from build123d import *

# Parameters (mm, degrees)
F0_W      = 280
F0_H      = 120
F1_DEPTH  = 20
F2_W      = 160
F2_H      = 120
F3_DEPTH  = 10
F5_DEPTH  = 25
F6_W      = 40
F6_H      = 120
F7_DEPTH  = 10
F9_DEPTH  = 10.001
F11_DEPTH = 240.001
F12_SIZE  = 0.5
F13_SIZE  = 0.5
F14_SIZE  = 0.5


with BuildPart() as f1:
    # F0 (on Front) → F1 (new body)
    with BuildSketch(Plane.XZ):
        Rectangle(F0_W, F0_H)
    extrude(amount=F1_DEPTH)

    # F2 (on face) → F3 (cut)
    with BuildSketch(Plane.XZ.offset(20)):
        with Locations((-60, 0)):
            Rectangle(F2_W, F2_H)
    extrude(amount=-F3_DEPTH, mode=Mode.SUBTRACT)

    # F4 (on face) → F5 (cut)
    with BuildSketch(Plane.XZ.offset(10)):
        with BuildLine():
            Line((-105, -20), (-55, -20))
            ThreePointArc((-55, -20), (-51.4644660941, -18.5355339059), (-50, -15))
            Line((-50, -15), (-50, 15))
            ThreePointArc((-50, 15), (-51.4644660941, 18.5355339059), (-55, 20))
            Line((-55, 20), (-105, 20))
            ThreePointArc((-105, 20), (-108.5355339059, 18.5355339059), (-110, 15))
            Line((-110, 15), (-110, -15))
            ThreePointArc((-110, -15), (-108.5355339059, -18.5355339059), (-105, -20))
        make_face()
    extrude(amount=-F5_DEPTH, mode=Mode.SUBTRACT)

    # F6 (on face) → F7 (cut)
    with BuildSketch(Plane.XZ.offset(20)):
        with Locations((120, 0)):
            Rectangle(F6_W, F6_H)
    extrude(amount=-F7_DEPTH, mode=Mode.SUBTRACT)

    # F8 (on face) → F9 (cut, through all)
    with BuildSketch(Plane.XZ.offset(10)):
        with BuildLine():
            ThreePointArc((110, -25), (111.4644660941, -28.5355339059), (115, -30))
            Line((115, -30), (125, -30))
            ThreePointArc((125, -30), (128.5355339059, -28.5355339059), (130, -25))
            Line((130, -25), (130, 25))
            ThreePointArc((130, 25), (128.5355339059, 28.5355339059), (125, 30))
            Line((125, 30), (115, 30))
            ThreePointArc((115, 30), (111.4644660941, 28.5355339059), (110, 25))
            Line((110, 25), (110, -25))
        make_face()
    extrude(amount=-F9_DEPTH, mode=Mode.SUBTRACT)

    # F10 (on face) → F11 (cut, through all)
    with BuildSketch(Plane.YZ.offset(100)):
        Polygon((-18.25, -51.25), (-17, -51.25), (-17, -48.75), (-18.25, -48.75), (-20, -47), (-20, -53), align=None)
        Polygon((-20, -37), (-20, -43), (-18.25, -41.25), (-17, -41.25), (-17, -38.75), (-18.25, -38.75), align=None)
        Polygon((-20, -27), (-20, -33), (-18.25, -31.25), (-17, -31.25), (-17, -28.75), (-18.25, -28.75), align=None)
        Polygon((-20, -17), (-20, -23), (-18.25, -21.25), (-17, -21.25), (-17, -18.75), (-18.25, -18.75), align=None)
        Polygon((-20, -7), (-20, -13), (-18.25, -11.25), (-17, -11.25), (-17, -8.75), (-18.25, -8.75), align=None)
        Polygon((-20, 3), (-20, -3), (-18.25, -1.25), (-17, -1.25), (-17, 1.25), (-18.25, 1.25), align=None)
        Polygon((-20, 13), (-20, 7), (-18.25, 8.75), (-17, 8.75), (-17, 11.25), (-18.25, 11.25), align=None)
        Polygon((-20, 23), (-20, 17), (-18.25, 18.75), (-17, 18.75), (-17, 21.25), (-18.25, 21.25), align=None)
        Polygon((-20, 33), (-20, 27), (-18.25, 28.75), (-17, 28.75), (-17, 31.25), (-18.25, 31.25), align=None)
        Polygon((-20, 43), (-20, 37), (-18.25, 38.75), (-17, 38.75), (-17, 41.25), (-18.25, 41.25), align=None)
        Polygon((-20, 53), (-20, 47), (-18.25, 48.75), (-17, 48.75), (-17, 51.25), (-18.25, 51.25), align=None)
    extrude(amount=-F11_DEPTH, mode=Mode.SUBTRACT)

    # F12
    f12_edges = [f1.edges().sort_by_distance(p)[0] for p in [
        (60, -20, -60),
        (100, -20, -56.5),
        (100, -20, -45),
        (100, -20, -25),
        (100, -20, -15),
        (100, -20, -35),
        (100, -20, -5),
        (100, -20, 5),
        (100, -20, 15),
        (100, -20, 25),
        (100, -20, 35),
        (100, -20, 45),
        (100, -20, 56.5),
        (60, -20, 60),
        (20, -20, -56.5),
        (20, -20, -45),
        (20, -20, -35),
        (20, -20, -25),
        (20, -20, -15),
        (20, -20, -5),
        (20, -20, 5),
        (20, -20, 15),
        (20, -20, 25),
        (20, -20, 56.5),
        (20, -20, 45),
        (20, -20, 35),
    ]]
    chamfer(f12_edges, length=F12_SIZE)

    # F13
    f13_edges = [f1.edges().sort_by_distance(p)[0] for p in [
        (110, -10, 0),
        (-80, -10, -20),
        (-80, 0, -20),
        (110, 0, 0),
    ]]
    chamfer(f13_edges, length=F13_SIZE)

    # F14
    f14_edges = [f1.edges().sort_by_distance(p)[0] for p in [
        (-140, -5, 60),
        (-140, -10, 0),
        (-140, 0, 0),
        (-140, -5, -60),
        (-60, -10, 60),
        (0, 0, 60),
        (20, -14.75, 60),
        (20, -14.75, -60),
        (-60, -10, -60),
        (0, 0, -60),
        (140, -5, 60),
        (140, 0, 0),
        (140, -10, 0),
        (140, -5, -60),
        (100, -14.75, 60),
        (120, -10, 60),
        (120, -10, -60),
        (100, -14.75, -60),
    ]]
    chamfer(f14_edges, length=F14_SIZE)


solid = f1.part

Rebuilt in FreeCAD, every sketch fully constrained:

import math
import FreeCAD as App
import Part
import Sketcher

V = App.Vector
Q = App.Units.Quantity


def edges_at(feature, points):
    """Names of the edges that pass closest to the given points."""
    edges = feature.Shape.Edges
    near = lambda p: min(range(len(edges)), key=lambda i: edges[i].distToShape(Part.Vertex(*p))[0])
    return sorted({f"Edge{near(p) + 1}" for p in points})

doc = App.newDocument("Part")
body = doc.addObject("PartDesign::Body", "Body")

# Sketch on XZ plane
sketch1 = body.newObject("Sketcher::SketchObject", "Sketch")
sketch1.AttachmentSupport = (doc.getObject("XZ_Plane"), [""])
sketch1.MapMode = "FlatFace"
sketch1.addGeometry(Part.LineSegment(V(-140, 60, 0), V(-140, -60, 0)), False)
sketch1.addGeometry(Part.LineSegment(V(-140, -60, 0), V(140, -60, 0)), False)
sketch1.addGeometry(Part.LineSegment(V(140, -60, 0), V(140, 60, 0)), False)
sketch1.addGeometry(Part.LineSegment(V(140, 60, 0), V(-140, 60, 0)), False)
sketch1.addConstraint(Sketcher.Constraint("Coincident", 0, 2, 1, 1))
sketch1.addConstraint(Sketcher.Constraint("Coincident", 1, 2, 2, 1))
sketch1.addConstraint(Sketcher.Constraint("Coincident", 2, 2, 3, 1))
sketch1.addConstraint(Sketcher.Constraint("Coincident", 3, 2, 0, 1))
sketch1.addConstraint(Sketcher.Constraint("Vertical", 0))
sketch1.addConstraint(Sketcher.Constraint("Horizontal", 1))
sketch1.addConstraint(Sketcher.Constraint("Vertical", 2))
sketch1.addConstraint(Sketcher.Constraint("Horizontal", 3))
sketch1.addConstraint(Sketcher.Constraint("Symmetric", 0, 2, 2, 2, -1, 1))
sketch1.addConstraint(Sketcher.Constraint("DistanceX", 1, 1, 1, 2, Q("280 mm")))
sketch1.addConstraint(Sketcher.Constraint("DistanceY", 0, 2, 0, 1, Q("120 mm")))
pad1 = body.newObject("PartDesign::Pad", "Pad")
pad1.Profile = sketch1
pad1.Length = 20

# Sketch on XZ plane
sketch2 = body.newObject("Sketcher::SketchObject", "Sketch001")
sketch2.AttachmentSupport = (doc.getObject("XZ_Plane"), [""])
sketch2.MapMode = "FlatFace"
sketch2.AttachmentOffset = App.Placement(V(0, 0, 20), App.Rotation())
sketch2.addGeometry(Part.LineSegment(V(-140, 60, 0), V(-140, -60, 0)), False)
sketch2.addGeometry(Part.LineSegment(V(-140, -60, 0), V(20, -60, 0)), False)
sketch2.addGeometry(Part.LineSegment(V(20, -60, 0), V(20, 60, 0)), False)
sketch2.addGeometry(Part.LineSegment(V(20, 60, 0), V(-140, 60, 0)), False)
sketch2.addConstraint(Sketcher.Constraint("Coincident", 0, 2, 1, 1))
sketch2.addConstraint(Sketcher.Constraint("Coincident", 1, 2, 2, 1))
sketch2.addConstraint(Sketcher.Constraint("Coincident", 2, 2, 3, 1))
sketch2.addConstraint(Sketcher.Constraint("Coincident", 3, 2, 0, 1))
sketch2.addConstraint(Sketcher.Constraint("Vertical", 0))
sketch2.addConstraint(Sketcher.Constraint("Horizontal", 1))
sketch2.addConstraint(Sketcher.Constraint("Vertical", 2))
sketch2.addConstraint(Sketcher.Constraint("Horizontal", 3))
sketch2.addConstraint(Sketcher.Constraint("DistanceX", 1, 1, 1, 2, Q("160 mm")))
sketch2.addConstraint(Sketcher.Constraint("DistanceY", 0, 2, 0, 1, Q("120 mm")))
sketch2.addConstraint(Sketcher.Constraint("DistanceX", 0, 2, -1, 1, Q("140 mm")))
sketch2.addConstraint(Sketcher.Constraint("DistanceY", 0, 2, -1, 1, Q("60 mm")))
pocket1 = body.newObject("PartDesign::Pocket", "Pocket")
pocket1.Profile = sketch2
pocket1.Length = 10

# Sketch on XZ plane
sketch3 = body.newObject("Sketcher::SketchObject", "Sketch002")
sketch3.AttachmentSupport = (doc.getObject("XZ_Plane"), [""])
sketch3.MapMode = "FlatFace"
sketch3.AttachmentOffset = App.Placement(V(0, 0, 10), App.Rotation())
sketch3.addGeometry(Part.LineSegment(V(-105, -20, 0), V(-55, -20, 0)), False)
sketch3.addGeometry(Part.ArcOfCircle(Part.Circle(V(-55, -15, 0), V(0, 0, 1), 5), math.radians(-90), math.radians(0)), False)
sketch3.addGeometry(Part.LineSegment(V(-50, -15, 0), V(-50, 15, 0)), False)
sketch3.addGeometry(Part.ArcOfCircle(Part.Circle(V(-55, 15, 0), V(0, 0, 1), 5), math.radians(0), math.radians(90)), False)
sketch3.addGeometry(Part.LineSegment(V(-55, 20, 0), V(-105, 20, 0)), False)
sketch3.addGeometry(Part.ArcOfCircle(Part.Circle(V(-105, 15, 0), V(0, 0, 1), 5), math.radians(90), math.radians(180)), False)
sketch3.addGeometry(Part.LineSegment(V(-110, 15, 0), V(-110, -15, 0)), False)
sketch3.addGeometry(Part.ArcOfCircle(Part.Circle(V(-105, -15, 0), V(0, 0, 1), 5), math.radians(180), math.radians(270)), False)
sketch3.addConstraint(Sketcher.Constraint("Tangent", 0, 2, 1, 1))
sketch3.addConstraint(Sketcher.Constraint("Tangent", 1, 2, 2, 1))
sketch3.addConstraint(Sketcher.Constraint("Tangent", 2, 2, 3, 1))
sketch3.addConstraint(Sketcher.Constraint("Tangent", 3, 2, 4, 1))
sketch3.addConstraint(Sketcher.Constraint("Tangent", 4, 2, 5, 1))
sketch3.addConstraint(Sketcher.Constraint("Tangent", 5, 2, 6, 1))
sketch3.addConstraint(Sketcher.Constraint("Tangent", 6, 2, 7, 1))
sketch3.addConstraint(Sketcher.Constraint("Tangent", 7, 2, 0, 1))
sketch3.addConstraint(Sketcher.Constraint("Horizontal", 0))
sketch3.addConstraint(Sketcher.Constraint("Vertical", 2))
sketch3.addConstraint(Sketcher.Constraint("Horizontal", 4))
sketch3.addConstraint(Sketcher.Constraint("Vertical", 6))
sketch3.addConstraint(Sketcher.Constraint("Equal", 1, 3))
sketch3.addConstraint(Sketcher.Constraint("Equal", 3, 5))
sketch3.addConstraint(Sketcher.Constraint("Equal", 5, 7))
sketch3.addConstraint(Sketcher.Constraint("Radius", 1, Q("5 mm")))
sketch3.addConstraint(Sketcher.Constraint("DistanceX", 0, 1, 0, 2, Q("50 mm")))
sketch3.addConstraint(Sketcher.Constraint("DistanceY", 2, 1, 2, 2, Q("30 mm")))
sketch3.addConstraint(Sketcher.Constraint("DistanceX", 1, 3, -1, 1, Q("55 mm")))
sketch3.addConstraint(Sketcher.Constraint("DistanceY", 1, 3, -1, 1, Q("15 mm")))
pocket2 = body.newObject("PartDesign::Pocket", "Pocket001")
pocket2.Profile = sketch3
pocket2.Length = 25

# Sketch on XZ plane
sketch4 = body.newObject("Sketcher::SketchObject", "Sketch003")
sketch4.AttachmentSupport = (doc.getObject("XZ_Plane"), [""])
sketch4.MapMode = "FlatFace"
sketch4.AttachmentOffset = App.Placement(V(0, 0, 20), App.Rotation())
sketch4.addGeometry(Part.LineSegment(V(100, 60, 0), V(100, -60, 0)), False)
sketch4.addGeometry(Part.LineSegment(V(100, -60, 0), V(140, -60, 0)), False)
sketch4.addGeometry(Part.LineSegment(V(140, -60, 0), V(140, 60, 0)), False)
sketch4.addGeometry(Part.LineSegment(V(140, 60, 0), V(100, 60, 0)), False)
sketch4.addConstraint(Sketcher.Constraint("Coincident", 0, 2, 1, 1))
sketch4.addConstraint(Sketcher.Constraint("Coincident", 1, 2, 2, 1))
sketch4.addConstraint(Sketcher.Constraint("Coincident", 2, 2, 3, 1))
sketch4.addConstraint(Sketcher.Constraint("Coincident", 3, 2, 0, 1))
sketch4.addConstraint(Sketcher.Constraint("Vertical", 0))
sketch4.addConstraint(Sketcher.Constraint("Horizontal", 1))
sketch4.addConstraint(Sketcher.Constraint("Vertical", 2))
sketch4.addConstraint(Sketcher.Constraint("Horizontal", 3))
sketch4.addConstraint(Sketcher.Constraint("DistanceX", 1, 1, 1, 2, Q("40 mm")))
sketch4.addConstraint(Sketcher.Constraint("DistanceY", 0, 2, 0, 1, Q("120 mm")))
sketch4.addConstraint(Sketcher.Constraint("DistanceX", -1, 1, 0, 2, Q("100 mm")))
sketch4.addConstraint(Sketcher.Constraint("DistanceY", 0, 2, -1, 1, Q("60 mm")))
pocket3 = body.newObject("PartDesign::Pocket", "Pocket002")
pocket3.Profile = sketch4
pocket3.Length = 10

# Sketch on XZ plane
sketch5 = body.newObject("Sketcher::SketchObject", "Sketch004")
sketch5.AttachmentSupport = (doc.getObject("XZ_Plane"), [""])
sketch5.MapMode = "FlatFace"
sketch5.AttachmentOffset = App.Placement(V(0, 0, 10), App.Rotation())
sketch5.addGeometry(Part.ArcOfCircle(Part.Circle(V(115, -25, 0), V(0, 0, 1), 5), math.radians(180), math.radians(270)), False)
sketch5.addGeometry(Part.LineSegment(V(115, -30, 0), V(125, -30, 0)), False)
sketch5.addGeometry(Part.ArcOfCircle(Part.Circle(V(125, -25, 0), V(0, 0, 1), 5), math.radians(-90), math.radians(0)), False)
sketch5.addGeometry(Part.LineSegment(V(130, -25, 0), V(130, 25, 0)), False)
sketch5.addGeometry(Part.ArcOfCircle(Part.Circle(V(125, 25, 0), V(0, 0, 1), 5), math.radians(0), math.radians(90)), False)
sketch5.addGeometry(Part.LineSegment(V(125, 30, 0), V(115, 30, 0)), False)
sketch5.addGeometry(Part.ArcOfCircle(Part.Circle(V(115, 25, 0), V(0, 0, 1), 5), math.radians(90), math.radians(180)), False)
sketch5.addGeometry(Part.LineSegment(V(110, 25, 0), V(110, -25, 0)), False)
sketch5.addConstraint(Sketcher.Constraint("Tangent", 0, 2, 1, 1))
sketch5.addConstraint(Sketcher.Constraint("Tangent", 1, 2, 2, 1))
sketch5.addConstraint(Sketcher.Constraint("Tangent", 2, 2, 3, 1))
sketch5.addConstraint(Sketcher.Constraint("Tangent", 3, 2, 4, 1))
sketch5.addConstraint(Sketcher.Constraint("Tangent", 4, 2, 5, 1))
sketch5.addConstraint(Sketcher.Constraint("Tangent", 5, 2, 6, 1))
sketch5.addConstraint(Sketcher.Constraint("Tangent", 6, 2, 7, 1))
sketch5.addConstraint(Sketcher.Constraint("Tangent", 7, 2, 0, 1))
sketch5.addConstraint(Sketcher.Constraint("Horizontal", 1))
sketch5.addConstraint(Sketcher.Constraint("Vertical", 3))
sketch5.addConstraint(Sketcher.Constraint("Horizontal", 5))
sketch5.addConstraint(Sketcher.Constraint("Vertical", 7))
sketch5.addConstraint(Sketcher.Constraint("Equal", 0, 2))
sketch5.addConstraint(Sketcher.Constraint("Equal", 2, 4))
sketch5.addConstraint(Sketcher.Constraint("Equal", 4, 6))
sketch5.addConstraint(Sketcher.Constraint("Radius", 0, Q("5 mm")))
sketch5.addConstraint(Sketcher.Constraint("DistanceX", 1, 1, 1, 2, Q("10 mm")))
sketch5.addConstraint(Sketcher.Constraint("DistanceY", 3, 1, 3, 2, Q("50 mm")))
sketch5.addConstraint(Sketcher.Constraint("DistanceX", -1, 1, 0, 3, Q("115 mm")))
sketch5.addConstraint(Sketcher.Constraint("DistanceY", 0, 3, -1, 1, Q("25 mm")))
pocket4 = body.newObject("PartDesign::Pocket", "Pocket003")
pocket4.Profile = sketch5
pocket4.Type = "ThroughAll"

# Sketch on YZ plane
sketch6 = body.newObject("Sketcher::SketchObject", "Sketch005")
sketch6.AttachmentSupport = (doc.getObject("YZ_Plane"), [""])
sketch6.MapMode = "FlatFace"
sketch6.AttachmentOffset = App.Placement(V(0, 0, 100), App.Rotation())
sketch6.addGeometry(Part.LineSegment(V(-18.2, -51.2, 0), V(-17, -51.2, 0)), False)
sketch6.addGeometry(Part.LineSegment(V(-17, -51.2, 0), V(-17, -48.8, 0)), False)
sketch6.addGeometry(Part.LineSegment(V(-17, -48.8, 0), V(-18.2, -48.8, 0)), False)
sketch6.addGeometry(Part.LineSegment(V(-18.2, -48.8, 0), V(-20, -47, 0)), False)
sketch6.addGeometry(Part.LineSegment(V(-20, -47, 0), V(-20, -53, 0)), False)
sketch6.addGeometry(Part.LineSegment(V(-20, -53, 0), V(-18.2, -51.2, 0)), False)
sketch6.addGeometry(Part.LineSegment(V(-20, -37, 0), V(-20, -43, 0)), False)
sketch6.addGeometry(Part.LineSegment(V(-20, -43, 0), V(-18.2, -41.2, 0)), False)
sketch6.addGeometry(Part.LineSegment(V(-18.2, -41.2, 0), V(-17, -41.2, 0)), False)
sketch6.addGeometry(Part.LineSegment(V(-17, -41.2, 0), V(-17, -38.8, 0)), False)
sketch6.addGeometry(Part.LineSegment(V(-17, -38.8, 0), V(-18.2, -38.8, 0)), False)
sketch6.addGeometry(Part.LineSegment(V(-18.2, -38.8, 0), V(-20, -37, 0)), False)
sketch6.addGeometry(Part.LineSegment(V(-20, -27, 0), V(-20, -33, 0)), False)
sketch6.addGeometry(Part.LineSegment(V(-20, -33, 0), V(-18.2, -31.2, 0)), False)
sketch6.addGeometry(Part.LineSegment(V(-18.2, -31.2, 0), V(-17, -31.2, 0)), False)
sketch6.addGeometry(Part.LineSegment(V(-17, -31.2, 0), V(-17, -28.8, 0)), False)
sketch6.addGeometry(Part.LineSegment(V(-17, -28.8, 0), V(-18.2, -28.8, 0)), False)
sketch6.addGeometry(Part.LineSegment(V(-18.2, -28.8, 0), V(-20, -27, 0)), False)
sketch6.addGeometry(Part.LineSegment(V(-20, -17, 0), V(-20, -23, 0)), False)
sketch6.addGeometry(Part.LineSegment(V(-20, -23, 0), V(-18.2, -21.2, 0)), False)
sketch6.addGeometry(Part.LineSegment(V(-18.2, -21.2, 0), V(-17, -21.2, 0)), False)
sketch6.addGeometry(Part.LineSegment(V(-17, -21.2, 0), V(-17, -18.8, 0)), False)
sketch6.addGeometry(Part.LineSegment(V(-17, -18.8, 0), V(-18.2, -18.8, 0)), False)
sketch6.addGeometry(Part.LineSegment(V(-18.2, -18.8, 0), V(-20, -17, 0)), False)
sketch6.addGeometry(Part.LineSegment(V(-20, -7, 0), V(-20, -13, 0)), False)
sketch6.addGeometry(Part.LineSegment(V(-20, -13, 0), V(-18.2, -11.2, 0)), False)
sketch6.addGeometry(Part.LineSegment(V(-18.2, -11.2, 0), V(-17, -11.2, 0)), False)
sketch6.addGeometry(Part.LineSegment(V(-17, -11.2, 0), V(-17, -8.8, 0)), False)
sketch6.addGeometry(Part.LineSegment(V(-17, -8.8, 0), V(-18.2, -8.8, 0)), False)
sketch6.addGeometry(Part.LineSegment(V(-18.2, -8.8, 0), V(-20, -7, 0)), False)
sketch6.addGeometry(Part.LineSegment(V(-20, 3, 0), V(-20, -3, 0)), False)
sketch6.addGeometry(Part.LineSegment(V(-20, -3, 0), V(-18.2, -1.2, 0)), False)
sketch6.addGeometry(Part.LineSegment(V(-18.2, -1.2, 0), V(-17, -1.2, 0)), False)
sketch6.addGeometry(Part.LineSegment(V(-17, -1.2, 0), V(-17, 1.2, 0)), False)
sketch6.addGeometry(Part.LineSegment(V(-17, 1.2, 0), V(-18.2, 1.2, 0)), False)
sketch6.addGeometry(Part.LineSegment(V(-18.2, 1.2, 0), V(-20, 3, 0)), False)
sketch6.addGeometry(Part.LineSegment(V(-20, 13, 0), V(-20, 7, 0)), False)
sketch6.addGeometry(Part.LineSegment(V(-20, 7, 0), V(-18.2, 8.8, 0)), False)
sketch6.addGeometry(Part.LineSegment(V(-18.2, 8.8, 0), V(-17, 8.8, 0)), False)
sketch6.addGeometry(Part.LineSegment(V(-17, 8.8, 0), V(-17, 11.2, 0)), False)
sketch6.addGeometry(Part.LineSegment(V(-17, 11.2, 0), V(-18.2, 11.2, 0)), False)
sketch6.addGeometry(Part.LineSegment(V(-18.2, 11.2, 0), V(-20, 13, 0)), False)
sketch6.addGeometry(Part.LineSegment(V(-20, 23, 0), V(-20, 17, 0)), False)
sketch6.addGeometry(Part.LineSegment(V(-20, 17, 0), V(-18.2, 18.8, 0)), False)
sketch6.addGeometry(Part.LineSegment(V(-18.2, 18.8, 0), V(-17, 18.8, 0)), False)
sketch6.addGeometry(Part.LineSegment(V(-17, 18.8, 0), V(-17, 21.2, 0)), False)
sketch6.addGeometry(Part.LineSegment(V(-17, 21.2, 0), V(-18.2, 21.2, 0)), False)
sketch6.addGeometry(Part.LineSegment(V(-18.2, 21.2, 0), V(-20, 23, 0)), False)
sketch6.addGeometry(Part.LineSegment(V(-20, 33, 0), V(-20, 27, 0)), False)
sketch6.addGeometry(Part.LineSegment(V(-20, 27, 0), V(-18.2, 28.8, 0)), False)
sketch6.addGeometry(Part.LineSegment(V(-18.2, 28.8, 0), V(-17, 28.8, 0)), False)
sketch6.addGeometry(Part.LineSegment(V(-17, 28.8, 0), V(-17, 31.2, 0)), False)
sketch6.addGeometry(Part.LineSegment(V(-17, 31.2, 0), V(-18.2, 31.2, 0)), False)
sketch6.addGeometry(Part.LineSegment(V(-18.2, 31.2, 0), V(-20, 33, 0)), False)
sketch6.addGeometry(Part.LineSegment(V(-20, 43, 0), V(-20, 37, 0)), False)
sketch6.addGeometry(Part.LineSegment(V(-20, 37, 0), V(-18.2, 38.8, 0)), False)
sketch6.addGeometry(Part.LineSegment(V(-18.2, 38.8, 0), V(-17, 38.8, 0)), False)
sketch6.addGeometry(Part.LineSegment(V(-17, 38.8, 0), V(-17, 41.2, 0)), False)
sketch6.addGeometry(Part.LineSegment(V(-17, 41.2, 0), V(-18.2, 41.2, 0)), False)
sketch6.addGeometry(Part.LineSegment(V(-18.2, 41.2, 0), V(-20, 43, 0)), False)
sketch6.addGeometry(Part.LineSegment(V(-20, 53, 0), V(-20, 47, 0)), False)
sketch6.addGeometry(Part.LineSegment(V(-20, 47, 0), V(-18.2, 48.8, 0)), False)
sketch6.addGeometry(Part.LineSegment(V(-18.2, 48.8, 0), V(-17, 48.8, 0)), False)
sketch6.addGeometry(Part.LineSegment(V(-17, 48.8, 0), V(-17, 51.2, 0)), False)
sketch6.addGeometry(Part.LineSegment(V(-17, 51.2, 0), V(-18.2, 51.2, 0)), False)
sketch6.addGeometry(Part.LineSegment(V(-18.2, 51.2, 0), V(-20, 53, 0)), False)
sketch6.addConstraint(Sketcher.Constraint("Coincident", 0, 2, 1, 1))
sketch6.addConstraint(Sketcher.Constraint("Coincident", 1, 2, 2, 1))
sketch6.addConstraint(Sketcher.Constraint("Coincident", 2, 2, 3, 1))
sketch6.addConstraint(Sketcher.Constraint("Coincident", 3, 2, 4, 1))
sketch6.addConstraint(Sketcher.Constraint("Coincident", 4, 2, 5, 1))
sketch6.addConstraint(Sketcher.Constraint("Coincident", 5, 2, 0, 1))
sketch6.addConstraint(Sketcher.Constraint("Coincident", 6, 2, 7, 1))
sketch6.addConstraint(Sketcher.Constraint("Coincident", 7, 2, 8, 1))
sketch6.addConstraint(Sketcher.Constraint("Coincident", 8, 2, 9, 1))
sketch6.addConstraint(Sketcher.Constraint("Coincident", 9, 2, 10, 1))
sketch6.addConstraint(Sketcher.Constraint("Coincident", 10, 2, 11, 1))
sketch6.addConstraint(Sketcher.Constraint("Coincident", 11, 2, 6, 1))
sketch6.addConstraint(Sketcher.Constraint("Coincident", 12, 2, 13, 1))
sketch6.addConstraint(Sketcher.Constraint("Coincident", 13, 2, 14, 1))
sketch6.addConstraint(Sketcher.Constraint("Coincident", 14, 2, 15, 1))
sketch6.addConstraint(Sketcher.Constraint("Coincident", 15, 2, 16, 1))
sketch6.addConstraint(Sketcher.Constraint("Coincident", 16, 2, 17, 1))
sketch6.addConstraint(Sketcher.Constraint("Coincident", 17, 2, 12, 1))
sketch6.addConstraint(Sketcher.Constraint("Coincident", 18, 2, 19, 1))
sketch6.addConstraint(Sketcher.Constraint("Coincident", 19, 2, 20, 1))
sketch6.addConstraint(Sketcher.Constraint("Coincident", 20, 2, 21, 1))
sketch6.addConstraint(Sketcher.Constraint("Coincident", 21, 2, 22, 1))
sketch6.addConstraint(Sketcher.Constraint("Coincident", 22, 2, 23, 1))
sketch6.addConstraint(Sketcher.Constraint("Coincident", 23, 2, 18, 1))
sketch6.addConstraint(Sketcher.Constraint("Coincident", 24, 2, 25, 1))
sketch6.addConstraint(Sketcher.Constraint("Coincident", 25, 2, 26, 1))
sketch6.addConstraint(Sketcher.Constraint("Coincident", 26, 2, 27, 1))
sketch6.addConstraint(Sketcher.Constraint("Coincident", 27, 2, 28, 1))
sketch6.addConstraint(Sketcher.Constraint("Coincident", 28, 2, 29, 1))
sketch6.addConstraint(Sketcher.Constraint("Coincident", 29, 2, 24, 1))
sketch6.addConstraint(Sketcher.Constraint("Coincident", 30, 2, 31, 1))
sketch6.addConstraint(Sketcher.Constraint("Coincident", 31, 2, 32, 1))
sketch6.addConstraint(Sketcher.Constraint("Coincident", 32, 2, 33, 1))
sketch6.addConstraint(Sketcher.Constraint("Coincident", 33, 2, 34, 1))
sketch6.addConstraint(Sketcher.Constraint("Coincident", 34, 2, 35, 1))
sketch6.addConstraint(Sketcher.Constraint("Coincident", 35, 2, 30, 1))
sketch6.addConstraint(Sketcher.Constraint("Coincident", 36, 2, 37, 1))
sketch6.addConstraint(Sketcher.Constraint("Coincident", 37, 2, 38, 1))
sketch6.addConstraint(Sketcher.Constraint("Coincident", 38, 2, 39, 1))
sketch6.addConstraint(Sketcher.Constraint("Coincident", 39, 2, 40, 1))
sketch6.addConstraint(Sketcher.Constraint("Coincident", 40, 2, 41, 1))
sketch6.addConstraint(Sketcher.Constraint("Coincident", 41, 2, 36, 1))
sketch6.addConstraint(Sketcher.Constraint("Coincident", 42, 2, 43, 1))
sketch6.addConstraint(Sketcher.Constraint("Coincident", 43, 2, 44, 1))
sketch6.addConstraint(Sketcher.Constraint("Coincident", 44, 2, 45, 1))
sketch6.addConstraint(Sketcher.Constraint("Coincident", 45, 2, 46, 1))
sketch6.addConstraint(Sketcher.Constraint("Coincident", 46, 2, 47, 1))
sketch6.addConstraint(Sketcher.Constraint("Coincident", 47, 2, 42, 1))
sketch6.addConstraint(Sketcher.Constraint("Coincident", 48, 2, 49, 1))
sketch6.addConstraint(Sketcher.Constraint("Coincident", 49, 2, 50, 1))
sketch6.addConstraint(Sketcher.Constraint("Coincident", 50, 2, 51, 1))
sketch6.addConstraint(Sketcher.Constraint("Coincident", 51, 2, 52, 1))
sketch6.addConstraint(Sketcher.Constraint("Coincident", 52, 2, 53, 1))
sketch6.addConstraint(Sketcher.Constraint("Coincident", 53, 2, 48, 1))
sketch6.addConstraint(Sketcher.Constraint("Coincident", 54, 2, 55, 1))
sketch6.addConstraint(Sketcher.Constraint("Coincident", 55, 2, 56, 1))
sketch6.addConstraint(Sketcher.Constraint("Coincident", 56, 2, 57, 1))
sketch6.addConstraint(Sketcher.Constraint("Coincident", 57, 2, 58, 1))
sketch6.addConstraint(Sketcher.Constraint("Coincident", 58, 2, 59, 1))
sketch6.addConstraint(Sketcher.Constraint("Coincident", 59, 2, 54, 1))
sketch6.addConstraint(Sketcher.Constraint("Coincident", 60, 2, 61, 1))
sketch6.addConstraint(Sketcher.Constraint("Coincident", 61, 2, 62, 1))
sketch6.addConstraint(Sketcher.Constraint("Coincident", 62, 2, 63, 1))
sketch6.addConstraint(Sketcher.Constraint("Coincident", 63, 2, 64, 1))
sketch6.addConstraint(Sketcher.Constraint("Coincident", 64, 2, 65, 1))
sketch6.addConstraint(Sketcher.Constraint("Coincident", 65, 2, 60, 1))
sketch6.addConstraint(Sketcher.Constraint("Horizontal", 0))
sketch6.addConstraint(Sketcher.Constraint("Vertical", 1))
sketch6.addConstraint(Sketcher.Constraint("Horizontal", 2))
sketch6.addConstraint(Sketcher.Constraint("Vertical", 4))
sketch6.addConstraint(Sketcher.Constraint("Vertical", 6))
sketch6.addConstraint(Sketcher.Constraint("Horizontal", 8))
sketch6.addConstraint(Sketcher.Constraint("Vertical", 9))
sketch6.addConstraint(Sketcher.Constraint("Horizontal", 10))
sketch6.addConstraint(Sketcher.Constraint("Vertical", 12))
sketch6.addConstraint(Sketcher.Constraint("Horizontal", 14))
sketch6.addConstraint(Sketcher.Constraint("Vertical", 15))
sketch6.addConstraint(Sketcher.Constraint("Horizontal", 16))
sketch6.addConstraint(Sketcher.Constraint("Vertical", 18))
sketch6.addConstraint(Sketcher.Constraint("Horizontal", 20))
sketch6.addConstraint(Sketcher.Constraint("Vertical", 21))
sketch6.addConstraint(Sketcher.Constraint("Horizontal", 22))
sketch6.addConstraint(Sketcher.Constraint("Vertical", 24))
sketch6.addConstraint(Sketcher.Constraint("Horizontal", 26))
sketch6.addConstraint(Sketcher.Constraint("Vertical", 27))
sketch6.addConstraint(Sketcher.Constraint("Horizontal", 28))
sketch6.addConstraint(Sketcher.Constraint("Vertical", 30))
sketch6.addConstraint(Sketcher.Constraint("Horizontal", 32))
sketch6.addConstraint(Sketcher.Constraint("Vertical", 33))
sketch6.addConstraint(Sketcher.Constraint("Horizontal", 34))
sketch6.addConstraint(Sketcher.Constraint("Vertical", 36))
sketch6.addConstraint(Sketcher.Constraint("Horizontal", 38))
sketch6.addConstraint(Sketcher.Constraint("Vertical", 39))
sketch6.addConstraint(Sketcher.Constraint("Horizontal", 40))
sketch6.addConstraint(Sketcher.Constraint("Vertical", 42))
sketch6.addConstraint(Sketcher.Constraint("Horizontal", 44))
sketch6.addConstraint(Sketcher.Constraint("Vertical", 45))
sketch6.addConstraint(Sketcher.Constraint("Horizontal", 46))
sketch6.addConstraint(Sketcher.Constraint("Vertical", 48))
sketch6.addConstraint(Sketcher.Constraint("Horizontal", 50))
sketch6.addConstraint(Sketcher.Constraint("Vertical", 51))
sketch6.addConstraint(Sketcher.Constraint("Horizontal", 52))
sketch6.addConstraint(Sketcher.Constraint("Vertical", 54))
sketch6.addConstraint(Sketcher.Constraint("Horizontal", 56))
sketch6.addConstraint(Sketcher.Constraint("Vertical", 57))
sketch6.addConstraint(Sketcher.Constraint("Horizontal", 58))
sketch6.addConstraint(Sketcher.Constraint("Vertical", 60))
sketch6.addConstraint(Sketcher.Constraint("Horizontal", 62))
sketch6.addConstraint(Sketcher.Constraint("Vertical", 63))
sketch6.addConstraint(Sketcher.Constraint("Horizontal", 64))
sketch6.addConstraint(Sketcher.Constraint("Symmetric", 31, 2, 34, 2, -1))
sketch6.addConstraint(Sketcher.Constraint("Symmetric", 29, 2, 36, 2, -1))
sketch6.addConstraint(Sketcher.Constraint("Symmetric", 28, 2, 37, 2, -1))
sketch6.addConstraint(Sketcher.Constraint("Symmetric", 26, 2, 39, 2, -1))
sketch6.addConstraint(Sketcher.Constraint("Symmetric", 23, 2, 42, 2, -1))
sketch6.addConstraint(Sketcher.Constraint("Symmetric", 22, 2, 43, 2, -1))
sketch6.addConstraint(Sketcher.Constraint("Symmetric", 20, 2, 45, 2, -1))
sketch6.addConstraint(Sketcher.Constraint("Symmetric", 17, 2, 48, 2, -1))
sketch6.addConstraint(Sketcher.Constraint("Symmetric", 16, 2, 49, 2, -1))
sketch6.addConstraint(Sketcher.Constraint("Symmetric", 14, 2, 51, 2, -1))
sketch6.addConstraint(Sketcher.Constraint("Symmetric", 11, 2, 54, 2, -1))
sketch6.addConstraint(Sketcher.Constraint("Symmetric", 10, 2, 55, 2, -1))
sketch6.addConstraint(Sketcher.Constraint("Symmetric", 8, 2, 57, 2, -1))
sketch6.addConstraint(Sketcher.Constraint("Symmetric", 3, 2, 60, 2, -1))
sketch6.addConstraint(Sketcher.Constraint("Symmetric", 2, 2, 61, 2, -1))
sketch6.addConstraint(Sketcher.Constraint("Symmetric", 0, 2, 63, 2, -1))
sketch6.addConstraint(Sketcher.Constraint("Perpendicular", 3, 5))
sketch6.addConstraint(Sketcher.Constraint("Parallel", 5, 7))
sketch6.addConstraint(Sketcher.Constraint("Perpendicular", 7, 11))
sketch6.addConstraint(Sketcher.Constraint("Perpendicular", 11, 13))
sketch6.addConstraint(Sketcher.Constraint("Perpendicular", 13, 17))
sketch6.addConstraint(Sketcher.Constraint("Perpendicular", 17, 19))
sketch6.addConstraint(Sketcher.Constraint("Perpendicular", 19, 23))
sketch6.addConstraint(Sketcher.Constraint("Perpendicular", 23, 25))
sketch6.addConstraint(Sketcher.Constraint("Perpendicular", 25, 29))
sketch6.addConstraint(Sketcher.Constraint("Perpendicular", 29, 31))
sketch6.addConstraint(Sketcher.Constraint("Perpendicular", 31, 35))
sketch6.addConstraint(Sketcher.Constraint("Perpendicular", 35, 37))
sketch6.addConstraint(Sketcher.Constraint("Perpendicular", 37, 41))
sketch6.addConstraint(Sketcher.Constraint("Perpendicular", 43, 47))
sketch6.addConstraint(Sketcher.Constraint("Perpendicular", 49, 53))
sketch6.addConstraint(Sketcher.Constraint("Perpendicular", 55, 59))
sketch6.addConstraint(Sketcher.Constraint("Perpendicular", 61, 65))
sketch6.addConstraint(Sketcher.Constraint("Vertical", 2, 2, 5, 2))
sketch6.addConstraint(Sketcher.Constraint("Vertical", 4, 2, 6, 2))
sketch6.addConstraint(Sketcher.Constraint("Vertical", 5, 2, 7, 2))
sketch6.addConstraint(Sketcher.Constraint("Vertical", 1, 2, 8, 2))
sketch6.addConstraint(Sketcher.Constraint("Vertical", 7, 2, 10, 2))
sketch6.addConstraint(Sketcher.Constraint("Vertical", 11, 2, 12, 2))
sketch6.addConstraint(Sketcher.Constraint("Vertical", 10, 2, 13, 2))
sketch6.addConstraint(Sketcher.Constraint("Vertical", 9, 2, 14, 2))
sketch6.addConstraint(Sketcher.Constraint("Vertical", 13, 2, 16, 2))
sketch6.addConstraint(Sketcher.Constraint("Vertical", 17, 2, 18, 2))
sketch6.addConstraint(Sketcher.Constraint("Vertical", 16, 2, 19, 2))
sketch6.addConstraint(Sketcher.Constraint("Vertical", 15, 2, 20, 2))
sketch6.addConstraint(Sketcher.Constraint("Vertical", 19, 2, 22, 2))
sketch6.addConstraint(Sketcher.Constraint("Vertical", 23, 2, 24, 2))
sketch6.addConstraint(Sketcher.Constraint("Vertical", 22, 2, 25, 2))
sketch6.addConstraint(Sketcher.Constraint("Vertical", 21, 2, 26, 2))
sketch6.addConstraint(Sketcher.Constraint("Vertical", 25, 2, 28, 2))
sketch6.addConstraint(Sketcher.Constraint("Vertical", 29, 2, 30, 2))
sketch6.addConstraint(Sketcher.Constraint("Vertical", 28, 2, 31, 2))
sketch6.addConstraint(Sketcher.Constraint("Vertical", 27, 2, 32, 2))
sketch6.addConstraint(Sketcher.Constraint("Vertical", 37, 2, 40, 2))
sketch6.addConstraint(Sketcher.Constraint("Vertical", 43, 2, 46, 2))
sketch6.addConstraint(Sketcher.Constraint("Vertical", 49, 2, 52, 2))
sketch6.addConstraint(Sketcher.Constraint("Vertical", 55, 2, 58, 2))
sketch6.addConstraint(Sketcher.Constraint("Vertical", 61, 2, 64, 2))
sketch6.addConstraint(Sketcher.Constraint("Equal", 4, 6))
sketch6.addConstraint(Sketcher.Constraint("Equal", 6, 12))
sketch6.addConstraint(Sketcher.Constraint("Equal", 12, 18))
sketch6.addConstraint(Sketcher.Constraint("Equal", 18, 24))
sketch6.addConstraint(Sketcher.Constraint("Equal", 24, 30))
sketch6.addConstraint(Sketcher.Constraint("DistanceY", 4, 2, 4, 1, Q("6 mm")))
sketch6.addConstraint(Sketcher.Constraint("DistanceY", 1, 1, 1, 2, Q("2.5 mm")))
sketch6.addConstraint(Sketcher.Constraint("DistanceX", 0, 2, -1, 1, Q("17 mm")))
sketch6.addConstraint(Sketcher.Constraint("DistanceX", 3, 2, -1, 1, Q("20 mm")))
sketch6.addConstraint(Sketcher.Constraint("DistanceY", 3, 2, -1, 1, Q("47 mm")))
sketch6.addConstraint(Sketcher.Constraint("DistanceY", 6, 2, -1, 1, Q("43 mm")))
sketch6.addConstraint(Sketcher.Constraint("DistanceY", 12, 2, -1, 1, Q("33 mm")))
sketch6.addConstraint(Sketcher.Constraint("DistanceY", 18, 2, -1, 1, Q("23 mm")))
sketch6.addConstraint(Sketcher.Constraint("DistanceY", 24, 2, -1, 1, Q("13 mm")))
pocket5 = body.newObject("PartDesign::Pocket", "Pocket004")
pocket5.Profile = sketch6
pocket5.Type = "ThroughAll"
doc.recompute()

chamfer = body.newObject("PartDesign::Chamfer", "Chamfer")
chamfer.Base = (pocket5, edges_at(pocket5, [
    (60, -20, -60),
    (100, -20, -56.5),
    (100, -20, -45),
    (100, -20, -25),
    (100, -20, -15),
    (100, -20, -35),
    (100, -20, -5),
    (100, -20, 5),
    (100, -20, 15),
    (100, -20, 25),
    (100, -20, 35),
    (100, -20, 45),
    (100, -20, 56.5),
    (60, -20, 60),
    (20, -20, -56.5),
    (20, -20, -45),
    (20, -20, -35),
    (20, -20, -25),
    (20, -20, -15),
    (20, -20, -5),
    (20, -20, 5),
    (20, -20, 15),
    (20, -20, 25),
    (20, -20, 56.5),
    (20, -20, 45),
    (20, -20, 35),
]))
chamfer.Size = 0.5
doc.recompute()

chamfer2 = body.newObject("PartDesign::Chamfer", "Chamfer001")
chamfer2.Base = (chamfer, edges_at(chamfer, [
    (110, -10, 0),
    (-80, -10, -20),
    (-80, 0, -20),
    (110, 0, 0),
]))
chamfer2.Size = 0.5
doc.recompute()

chamfer3 = body.newObject("PartDesign::Chamfer", "Chamfer002")
chamfer3.Base = (chamfer2, edges_at(chamfer2, [
    (-140, -5, 60),
    (-140, -10, 0),
    (-140, 0, 0),
    (-140, -5, -60),
    (-60, -10, 60),
    (0, 0, 60),
    (20, -14.75, 60),
    (20, -14.75, -60),
    (-60, -10, -60),
    (0, 0, -60),
    (140, -5, 60),
    (140, 0, 0),
    (140, -10, 0),
    (140, -5, -60),
    (100, -14.75, 60),
    (120, -10, 60),
    (120, -10, -60),
    (100, -14.75, -60),
]))
chamfer3.Size = 0.5

doc.recompute()
